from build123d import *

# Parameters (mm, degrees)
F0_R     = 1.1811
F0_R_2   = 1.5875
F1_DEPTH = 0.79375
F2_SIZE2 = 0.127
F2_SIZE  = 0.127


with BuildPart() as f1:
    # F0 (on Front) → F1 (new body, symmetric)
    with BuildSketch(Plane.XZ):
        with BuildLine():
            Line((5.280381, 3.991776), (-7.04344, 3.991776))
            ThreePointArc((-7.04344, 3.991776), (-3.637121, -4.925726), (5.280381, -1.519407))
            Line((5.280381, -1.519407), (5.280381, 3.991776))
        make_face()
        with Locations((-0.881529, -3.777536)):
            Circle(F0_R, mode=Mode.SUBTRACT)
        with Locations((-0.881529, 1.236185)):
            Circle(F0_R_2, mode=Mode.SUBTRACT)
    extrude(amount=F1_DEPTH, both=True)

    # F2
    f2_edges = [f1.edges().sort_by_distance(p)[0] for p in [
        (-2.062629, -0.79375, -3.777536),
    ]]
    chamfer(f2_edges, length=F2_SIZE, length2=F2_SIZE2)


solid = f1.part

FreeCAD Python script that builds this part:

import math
import FreeCAD as App
import Part
import Sketcher

V = App.Vector
Q = App.Units.Quantity


def edges_at(feature, points):
    """Names of the edges that pass closest to the given points."""
    edges = feature.Shape.Edges
    near = lambda p: min(range(len(edges)), key=lambda i: edges[i].distToShape(Part.Vertex(*p))[0])
    return sorted({f"Edge{near(p) + 1}" for p in points})

doc = App.newDocument("Part")
body = doc.addObject("PartDesign::Body", "Body")

# Sketch on XZ plane
sketch1 = doc.addObject("Sketcher::SketchObject", "Sketch")
body.addObject(sketch1)
sketch1.AttachmentSupport = (doc.XZ_Plane, [""])
sketch1.MapMode = "FlatFace"
sketch1.addGeometry([
    Part.LineSegment(V(5.3, 4, 0), V(-7, 4, 0)),  # 0
    Part.ArcOfCircle(Part.Circle(V(-0.9, 1.2, 0), V(0, 0, 1), 6.7), math.radians(156), math.radians(336)),  # 1
    Part.LineSegment(V(5.3, -1.5, 0), V(5.3, 4, 0)),  # 2
    Part.Circle(V(-0.9, -3.8, 0), V(0, 0, 1), 1.2),  # 3
    Part.Circle(V(-0.9, 1.2, 0), V(0, 0, 1), 1.6),  # 4
], False)
sketch1.addConstraint([
    Sketcher.Constraint("Coincident", 0, 2, 1, 1),
    Sketcher.Constraint("Coincident", 1, 2, 2, 1),
    Sketcher.Constraint("Coincident", 2, 2, 0, 1),
    Sketcher.Constraint("Horizontal", 0),
    Sketcher.Constraint("Vertical", 2),
    Sketcher.Constraint("Coincident", 4, 3, 1, 3),
    Sketcher.Constraint("Vertical", 1, 3, 3, 3),
    Sketcher.Constraint("Diameter", 3, Q("0.093 in")),
    Sketcher.Constraint("Diameter", 4, Q("0.125 in")),
    Sketcher.Constraint("Radius", 1, 6.749994),
    Sketcher.Constraint("DistanceX", 0, 2, 0, 1, 12.323821),
    Sketcher.Constraint("DistanceX", 1, 3, -1, 1, 0.881529),
    Sketcher.Constraint("DistanceX", 0, 2, -1, 1, 7.04344),
    Sketcher.Constraint("DistanceY", 3, 3, 1, 3, 5.01372),
    Sketcher.Constraint("DistanceY", -1, 1, 1, 3, 1.236185),
])
pad1 = doc.addObject("PartDesign::Pad", "Pad")
body.addObject(pad1)
pad1.Profile = sketch1
pad1.Length = Q("0.0625 in")
pad1.Midplane = True
doc.recompute()

chamfer = doc.addObject("PartDesign::Chamfer", "Chamfer")
body.addObject(chamfer)
chamfer.Base = (pad1, edges_at(pad1, [(-2.063, -0.794, -3.778)]))
chamfer.ChamferType = "Two distances"
chamfer.Size = Q("0.005 in")
chamfer.Size2 = Q("0.005 in")

doc.recompute()
